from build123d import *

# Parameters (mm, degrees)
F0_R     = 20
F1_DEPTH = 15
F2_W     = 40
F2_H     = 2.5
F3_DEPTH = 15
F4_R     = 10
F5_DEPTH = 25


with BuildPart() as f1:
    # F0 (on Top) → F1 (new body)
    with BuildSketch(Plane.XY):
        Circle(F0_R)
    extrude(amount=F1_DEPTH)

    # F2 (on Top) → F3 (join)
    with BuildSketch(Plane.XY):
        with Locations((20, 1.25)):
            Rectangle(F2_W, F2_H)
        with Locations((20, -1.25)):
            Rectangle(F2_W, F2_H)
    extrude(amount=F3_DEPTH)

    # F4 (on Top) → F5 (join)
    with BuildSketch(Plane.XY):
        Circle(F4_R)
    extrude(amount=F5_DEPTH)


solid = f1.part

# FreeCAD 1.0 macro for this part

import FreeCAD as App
import Part
import Sketcher
from FreeCAD import Vector
Q = App.Units.Quantity

doc = App.newDocument("Part")
body = doc.addObject("PartDesign::Body", "Body")

sketch1 = body.newObject("Sketcher::SketchObject", "Sketch")
sketch1.AttachmentSupport = (doc.getObject("XY_Plane"), [""])
sketch1.MapMode = "FlatFace"
sketch1.addGeometry(Part.Circle(Vector(0, 0, 0), Vector(0, 0, 1), 20), False)
sketch1.addConstraint([
    Sketcher.Constraint("Coincident", 0, 3, -1, 1),
    Sketcher.Constraint("Diameter", 0, Q("40 mm")),
])
pad1 = body.newObject("PartDesign::Pad", "Pad")
pad1.Profile = sketch1
pad1.Length = 15

sketch2 = body.newObject("Sketcher::SketchObject", "Sketch001")
sketch2.AttachmentSupport = (doc.getObject("XY_Plane"), [""])
sketch2.MapMode = "FlatFace"
sketch2.addGeometry([
    Part.LineSegment(Vector(0, 2, 0), Vector(0, -2, 0)),
    Part.LineSegment(Vector(0, -2, 0), Vector(40, -2, 0)),
    Part.LineSegment(Vector(40, -2, 0), Vector(40, 2, 0)),
    Part.LineSegment(Vector(40, 2, 0), Vector(0, 2, 0)),
], False)
sketch2.addConstraint([
    Sketcher.Constraint("Coincident", 0, 2, 1, 1),
    Sketcher.Constraint("Coincident", 1, 2, 2, 1),
    Sketcher.Constraint("Coincident", 2, 2, 3, 1),
    Sketcher.Constraint("Coincident", 3, 2, 0, 1),
    Sketcher.Constraint("Vertical", 0),
    Sketcher.Constraint("Horizontal", 1),
    Sketcher.Constraint("Vertical", 2),
    Sketcher.Constraint("Horizontal", 3),
    Sketcher.Constraint("Symmetric", 0, 2, 3, 2, -1, 1),
    Sketcher.Constraint("DistanceX", 1, 1, 1, 2, Q("40 mm")),
    Sketcher.Constraint("DistanceY", 0, 2, 0, 1, Q("5 mm")),
])
pad2 = body.newObject("PartDesign::Pad", "Pad001")
pad2.Profile = sketch2
pad2.Length = 15

sketch3 = body.newObject("Sketcher::SketchObject", "Sketch002")
sketch3.AttachmentSupport = (doc.getObject("XY_Plane"), [""])
sketch3.MapMode = "FlatFace"
sketch3.addGeometry(Part.Circle(Vector(0, 0, 0), Vector(0, 0, 1), 10), False)
sketch3.addConstraint([
    Sketcher.Constraint("Coincident", 0, 3, -1, 1),
    Sketcher.Constraint("Diameter", 0, Q("20 mm")),
])
pad3 = body.newObject("PartDesign::Pad", "Pad002")
pad3.Profile = sketch3
pad3.Length = 25

doc.recompute()
